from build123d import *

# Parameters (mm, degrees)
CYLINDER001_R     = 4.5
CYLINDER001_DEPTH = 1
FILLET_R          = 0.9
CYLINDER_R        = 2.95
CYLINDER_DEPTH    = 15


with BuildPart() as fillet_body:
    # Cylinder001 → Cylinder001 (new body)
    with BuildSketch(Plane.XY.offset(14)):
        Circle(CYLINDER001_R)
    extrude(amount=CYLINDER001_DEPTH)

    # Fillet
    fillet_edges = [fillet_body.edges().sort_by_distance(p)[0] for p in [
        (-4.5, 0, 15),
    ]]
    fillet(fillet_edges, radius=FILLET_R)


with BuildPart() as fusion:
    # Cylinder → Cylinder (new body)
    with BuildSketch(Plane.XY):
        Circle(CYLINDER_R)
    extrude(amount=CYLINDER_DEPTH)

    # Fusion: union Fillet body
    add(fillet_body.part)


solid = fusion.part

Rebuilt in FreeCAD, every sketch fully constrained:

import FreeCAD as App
import Part
import Sketcher

V = App.Vector
Q = App.Units.Quantity


def edges_at(feature, points):
    """Names of the edges that pass closest to the given points."""
    edges = feature.Shape.Edges
    near = lambda p: min(range(len(edges)), key=lambda i: edges[i].distToShape(Part.Vertex(*p))[0])
    return sorted({f"Edge{near(p) + 1}" for p in points})

doc = App.newDocument("Part")
body = doc.addObject("PartDesign::Body", "Body")

sketch1 = body.newObject("Sketcher::SketchObject", "Sketch")
sketch1.AttachmentSupport = (doc.getObject("XY_Plane"), [""])
sketch1.MapMode = "FlatFace"
sketch1.AttachmentOffset = App.Placement(V(0, 0, 14), App.Rotation())
sketch1.addGeometry(Part.Circle(V(0, 0, 0), V(0, 0, 1), 4.5), False)
sketch1.addConstraint(Sketcher.Constraint("Coincident", 0, 3, -1, 1))
sketch1.addConstraint(Sketcher.Constraint("Diameter", 0, Q("9 mm")))
pad1 = body.newObject("PartDesign::Pad", "Pad")
pad1.Profile = sketch1
pad1.Length = 1
doc.recompute()

fillet = body.newObject("PartDesign::Fillet", "Fillet")
fillet.Base = (pad1, edges_at(pad1, [(-4.5, 0, 15)]))
fillet.Radius = 0.9
body2 = doc.addObject("PartDesign::Body", "Body001")

sketch2 = body2.newObject("Sketcher::SketchObject", "Sketch001")
sketch2.AttachmentSupport = (doc.getObject("XY_Plane001"), [""])
sketch2.MapMode = "FlatFace"
sketch2.addGeometry(Part.Circle(V(0, 0, 0), V(0, 0, 1), 3), False)
sketch2.addConstraint(Sketcher.Constraint("Coincident", 0, 3, -1, 1))
sketch2.addConstraint(Sketcher.Constraint("Diameter", 0, Q("5.9 mm")))
pad2 = body2.newObject("PartDesign::Pad", "Pad001")
pad2.Profile = sketch2
pad2.Length = 15
doc.recompute()

boolean = body2.newObject("PartDesign::Boolean", "Boolean")
boolean.Type = "Fuse"
boolean.addObjects([body])

doc.recompute()
